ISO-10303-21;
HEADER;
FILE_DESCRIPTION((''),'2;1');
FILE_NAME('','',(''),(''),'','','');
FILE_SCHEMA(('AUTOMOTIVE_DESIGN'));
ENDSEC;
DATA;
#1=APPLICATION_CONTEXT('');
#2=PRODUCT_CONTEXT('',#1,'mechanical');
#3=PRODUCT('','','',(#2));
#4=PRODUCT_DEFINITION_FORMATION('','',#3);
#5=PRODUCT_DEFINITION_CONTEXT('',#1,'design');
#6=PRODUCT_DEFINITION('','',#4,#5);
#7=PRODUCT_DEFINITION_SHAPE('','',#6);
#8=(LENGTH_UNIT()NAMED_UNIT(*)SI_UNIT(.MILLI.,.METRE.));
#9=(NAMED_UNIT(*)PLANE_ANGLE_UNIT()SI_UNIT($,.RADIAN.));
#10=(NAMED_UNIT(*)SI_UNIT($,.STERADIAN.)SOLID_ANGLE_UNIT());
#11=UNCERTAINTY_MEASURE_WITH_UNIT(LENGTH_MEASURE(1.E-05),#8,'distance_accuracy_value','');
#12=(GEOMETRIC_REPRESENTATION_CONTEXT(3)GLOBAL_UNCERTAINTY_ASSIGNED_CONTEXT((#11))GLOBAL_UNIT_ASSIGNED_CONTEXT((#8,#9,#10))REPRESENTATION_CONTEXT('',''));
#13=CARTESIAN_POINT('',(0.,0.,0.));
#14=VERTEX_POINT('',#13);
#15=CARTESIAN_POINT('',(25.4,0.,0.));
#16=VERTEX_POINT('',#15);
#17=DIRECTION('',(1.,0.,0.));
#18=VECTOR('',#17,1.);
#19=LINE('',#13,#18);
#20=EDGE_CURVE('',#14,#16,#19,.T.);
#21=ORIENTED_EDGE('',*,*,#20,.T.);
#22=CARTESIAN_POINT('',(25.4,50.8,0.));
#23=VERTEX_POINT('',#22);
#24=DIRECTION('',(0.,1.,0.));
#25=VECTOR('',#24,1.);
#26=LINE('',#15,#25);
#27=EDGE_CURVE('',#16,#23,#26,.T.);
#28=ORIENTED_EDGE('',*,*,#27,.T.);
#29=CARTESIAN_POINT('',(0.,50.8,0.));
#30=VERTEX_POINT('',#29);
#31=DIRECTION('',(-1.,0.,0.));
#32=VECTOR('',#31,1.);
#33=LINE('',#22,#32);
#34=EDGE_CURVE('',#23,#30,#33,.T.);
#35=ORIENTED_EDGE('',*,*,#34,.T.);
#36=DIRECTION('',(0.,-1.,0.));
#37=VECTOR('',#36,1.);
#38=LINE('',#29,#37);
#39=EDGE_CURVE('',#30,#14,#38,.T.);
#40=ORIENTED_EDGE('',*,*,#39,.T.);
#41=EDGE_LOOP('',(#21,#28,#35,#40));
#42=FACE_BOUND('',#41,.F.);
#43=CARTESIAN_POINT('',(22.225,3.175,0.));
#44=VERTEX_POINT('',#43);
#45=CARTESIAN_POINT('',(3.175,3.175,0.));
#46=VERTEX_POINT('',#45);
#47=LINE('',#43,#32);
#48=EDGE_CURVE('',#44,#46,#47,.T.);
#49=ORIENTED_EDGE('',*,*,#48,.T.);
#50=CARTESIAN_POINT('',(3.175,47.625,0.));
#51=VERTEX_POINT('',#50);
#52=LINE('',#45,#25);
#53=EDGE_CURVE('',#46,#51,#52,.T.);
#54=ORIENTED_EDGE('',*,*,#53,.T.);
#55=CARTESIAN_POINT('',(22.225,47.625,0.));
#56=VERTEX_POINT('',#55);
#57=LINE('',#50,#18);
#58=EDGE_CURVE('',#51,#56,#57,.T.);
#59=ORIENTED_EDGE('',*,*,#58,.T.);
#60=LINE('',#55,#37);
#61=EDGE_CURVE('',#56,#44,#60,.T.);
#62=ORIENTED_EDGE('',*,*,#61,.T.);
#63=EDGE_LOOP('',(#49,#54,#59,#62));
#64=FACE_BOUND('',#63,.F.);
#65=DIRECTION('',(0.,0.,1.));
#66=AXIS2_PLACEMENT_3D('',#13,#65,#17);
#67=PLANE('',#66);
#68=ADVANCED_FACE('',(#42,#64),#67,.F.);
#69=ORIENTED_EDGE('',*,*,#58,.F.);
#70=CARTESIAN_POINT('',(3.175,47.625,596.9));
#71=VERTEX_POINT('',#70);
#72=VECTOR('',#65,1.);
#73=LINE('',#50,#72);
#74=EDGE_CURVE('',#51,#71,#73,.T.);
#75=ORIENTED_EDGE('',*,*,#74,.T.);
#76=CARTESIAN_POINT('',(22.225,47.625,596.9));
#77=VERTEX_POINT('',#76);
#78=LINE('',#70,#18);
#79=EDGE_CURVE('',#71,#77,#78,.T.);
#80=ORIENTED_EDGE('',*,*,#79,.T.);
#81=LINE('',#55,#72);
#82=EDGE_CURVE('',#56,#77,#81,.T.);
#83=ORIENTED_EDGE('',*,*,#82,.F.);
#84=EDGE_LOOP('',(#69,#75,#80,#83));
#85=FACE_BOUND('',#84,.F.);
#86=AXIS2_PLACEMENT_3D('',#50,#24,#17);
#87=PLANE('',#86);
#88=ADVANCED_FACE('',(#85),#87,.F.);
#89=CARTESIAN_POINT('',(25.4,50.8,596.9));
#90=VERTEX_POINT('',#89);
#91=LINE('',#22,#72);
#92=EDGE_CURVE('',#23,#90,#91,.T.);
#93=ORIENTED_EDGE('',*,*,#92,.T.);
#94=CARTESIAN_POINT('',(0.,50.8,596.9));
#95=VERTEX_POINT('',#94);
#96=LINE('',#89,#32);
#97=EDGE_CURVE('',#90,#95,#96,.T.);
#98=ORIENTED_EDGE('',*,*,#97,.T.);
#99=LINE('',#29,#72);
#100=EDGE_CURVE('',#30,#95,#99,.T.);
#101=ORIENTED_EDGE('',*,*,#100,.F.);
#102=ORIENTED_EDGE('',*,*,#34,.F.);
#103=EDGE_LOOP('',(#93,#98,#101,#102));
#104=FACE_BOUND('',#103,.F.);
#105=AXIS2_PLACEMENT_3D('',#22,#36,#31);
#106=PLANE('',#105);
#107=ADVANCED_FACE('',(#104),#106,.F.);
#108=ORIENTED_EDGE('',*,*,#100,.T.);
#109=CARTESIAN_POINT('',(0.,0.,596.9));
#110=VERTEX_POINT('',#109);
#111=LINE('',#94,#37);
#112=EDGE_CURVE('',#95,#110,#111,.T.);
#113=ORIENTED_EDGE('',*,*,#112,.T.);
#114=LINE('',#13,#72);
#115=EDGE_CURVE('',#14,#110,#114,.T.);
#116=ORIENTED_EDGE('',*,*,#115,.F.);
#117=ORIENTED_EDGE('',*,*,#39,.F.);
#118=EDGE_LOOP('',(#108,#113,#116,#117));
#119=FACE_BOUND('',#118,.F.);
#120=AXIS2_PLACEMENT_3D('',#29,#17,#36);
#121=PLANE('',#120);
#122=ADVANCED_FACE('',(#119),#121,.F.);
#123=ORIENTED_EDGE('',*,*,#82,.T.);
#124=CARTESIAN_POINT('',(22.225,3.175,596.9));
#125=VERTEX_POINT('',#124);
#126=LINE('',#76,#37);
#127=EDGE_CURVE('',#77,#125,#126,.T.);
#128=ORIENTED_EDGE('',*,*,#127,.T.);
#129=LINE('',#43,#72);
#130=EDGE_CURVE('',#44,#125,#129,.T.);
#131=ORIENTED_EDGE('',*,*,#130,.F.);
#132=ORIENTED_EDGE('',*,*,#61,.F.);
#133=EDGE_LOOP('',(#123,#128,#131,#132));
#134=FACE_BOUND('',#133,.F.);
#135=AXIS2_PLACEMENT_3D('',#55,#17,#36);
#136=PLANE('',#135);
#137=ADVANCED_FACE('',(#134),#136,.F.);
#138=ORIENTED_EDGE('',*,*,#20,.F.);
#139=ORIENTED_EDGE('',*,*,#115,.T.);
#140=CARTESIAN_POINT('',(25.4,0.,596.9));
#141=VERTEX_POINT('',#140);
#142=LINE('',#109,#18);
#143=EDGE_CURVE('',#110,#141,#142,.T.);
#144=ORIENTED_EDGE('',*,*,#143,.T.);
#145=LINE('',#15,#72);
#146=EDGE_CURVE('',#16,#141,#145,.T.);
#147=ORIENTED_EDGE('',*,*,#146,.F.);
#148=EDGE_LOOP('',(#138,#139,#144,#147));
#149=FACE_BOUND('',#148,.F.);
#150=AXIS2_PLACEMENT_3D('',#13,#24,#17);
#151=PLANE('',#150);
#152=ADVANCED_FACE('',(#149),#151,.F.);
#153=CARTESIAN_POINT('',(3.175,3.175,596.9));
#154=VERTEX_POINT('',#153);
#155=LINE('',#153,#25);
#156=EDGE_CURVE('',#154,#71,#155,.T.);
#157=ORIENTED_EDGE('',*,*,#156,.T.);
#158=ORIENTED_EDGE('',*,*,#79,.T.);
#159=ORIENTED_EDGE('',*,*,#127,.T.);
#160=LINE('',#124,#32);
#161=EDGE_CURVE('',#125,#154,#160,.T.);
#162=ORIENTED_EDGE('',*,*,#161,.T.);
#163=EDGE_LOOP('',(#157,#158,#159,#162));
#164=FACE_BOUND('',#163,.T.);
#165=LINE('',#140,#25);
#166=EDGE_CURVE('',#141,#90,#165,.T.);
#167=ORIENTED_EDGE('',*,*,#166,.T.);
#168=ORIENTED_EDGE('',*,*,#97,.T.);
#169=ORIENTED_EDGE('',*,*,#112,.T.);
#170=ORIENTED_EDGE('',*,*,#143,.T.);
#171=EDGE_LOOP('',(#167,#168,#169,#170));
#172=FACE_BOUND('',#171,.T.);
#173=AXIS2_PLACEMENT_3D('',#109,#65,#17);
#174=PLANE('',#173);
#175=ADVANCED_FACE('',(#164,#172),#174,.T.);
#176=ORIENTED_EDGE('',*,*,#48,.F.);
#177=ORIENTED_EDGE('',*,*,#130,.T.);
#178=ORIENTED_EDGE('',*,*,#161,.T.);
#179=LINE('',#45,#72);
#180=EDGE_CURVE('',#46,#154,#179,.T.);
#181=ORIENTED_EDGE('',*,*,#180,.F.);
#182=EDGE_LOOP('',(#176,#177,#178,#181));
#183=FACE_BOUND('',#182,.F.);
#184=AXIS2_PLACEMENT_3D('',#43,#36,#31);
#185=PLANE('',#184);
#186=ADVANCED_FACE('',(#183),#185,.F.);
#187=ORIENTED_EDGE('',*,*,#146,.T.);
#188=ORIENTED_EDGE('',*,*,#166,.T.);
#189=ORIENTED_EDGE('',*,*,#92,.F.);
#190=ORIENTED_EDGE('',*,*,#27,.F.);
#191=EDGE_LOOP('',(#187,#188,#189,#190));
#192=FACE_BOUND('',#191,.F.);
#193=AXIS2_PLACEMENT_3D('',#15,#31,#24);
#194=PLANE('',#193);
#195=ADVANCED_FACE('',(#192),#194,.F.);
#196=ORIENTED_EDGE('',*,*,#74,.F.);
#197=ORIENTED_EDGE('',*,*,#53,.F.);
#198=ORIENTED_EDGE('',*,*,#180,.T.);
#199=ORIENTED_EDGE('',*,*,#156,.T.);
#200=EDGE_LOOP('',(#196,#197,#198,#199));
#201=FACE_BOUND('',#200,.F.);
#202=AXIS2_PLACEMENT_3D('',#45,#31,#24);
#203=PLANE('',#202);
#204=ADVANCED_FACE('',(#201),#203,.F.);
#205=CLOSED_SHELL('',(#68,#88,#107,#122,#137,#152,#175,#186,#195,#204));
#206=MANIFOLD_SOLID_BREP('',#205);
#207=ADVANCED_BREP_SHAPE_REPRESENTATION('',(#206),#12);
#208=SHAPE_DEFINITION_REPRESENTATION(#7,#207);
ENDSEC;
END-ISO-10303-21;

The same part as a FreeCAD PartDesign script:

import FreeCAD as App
import Part
import Sketcher
Q = App.Units.Quantity

doc = App.newDocument("Part")
body = doc.addObject("PartDesign::Body", "Body")

# Sketch on XY plane
sketch1 = body.newObject("Sketcher::SketchObject", "Sketch")
sketch1.AttachmentSupport = (doc.getObject("XY_Plane"), [""])
sketch1.MapMode = "FlatFace"
sketch1.addGeometry(Part.LineSegment(App.Vector(0, 50.8, 0), App.Vector(0, 0, 0)), False)
sketch1.addGeometry(Part.LineSegment(App.Vector(0, 0, 0), App.Vector(25.4, 0, 0)), False)
sketch1.addGeometry(Part.LineSegment(App.Vector(25.4, 0, 0), App.Vector(25.4, 50.8, 0)), False)
sketch1.addGeometry(Part.LineSegment(App.Vector(25.4, 50.8, 0), App.Vector(0, 50.8, 0)), False)
sketch1.addGeometry(Part.LineSegment(App.Vector(3.175, 3.175, 0), App.Vector(3.175, 47.625, 0)), False)
sketch1.addGeometry(Part.LineSegment(App.Vector(3.175, 47.625, 0), App.Vector(22.225, 47.625, 0)), False)
sketch1.addGeometry(Part.LineSegment(App.Vector(22.225, 47.625, 0), App.Vector(22.225, 3.175, 0)), False)
sketch1.addGeometry(Part.LineSegment(App.Vector(22.225, 3.175, 0), App.Vector(3.175, 3.175, 0)), False)
sketch1.addConstraint(Sketcher.Constraint("Coincident", 0, 2, 1, 1))
sketch1.addConstraint(Sketcher.Constraint("Coincident", 1, 2, 2, 1))
sketch1.addConstraint(Sketcher.Constraint("Coincident", 2, 2, 3, 1))
sketch1.addConstraint(Sketcher.Constraint("Coincident", 3, 2, 0, 1))
sketch1.addConstraint(Sketcher.Constraint("Coincident", 4, 2, 5, 1))
sketch1.addConstraint(Sketcher.Constraint("Coincident", 5, 2, 6, 1))
sketch1.addConstraint(Sketcher.Constraint("Coincident", 6, 2, 7, 1))
sketch1.addConstraint(Sketcher.Constraint("Coincident", 7, 2, 4, 1))
sketch1.addConstraint(Sketcher.Constraint("Vertical", 0))
sketch1.addConstraint(Sketcher.Constraint("Horizontal", 1))
sketch1.addConstraint(Sketcher.Constraint("Vertical", 2))
sketch1.addConstraint(Sketcher.Constraint("Horizontal", 3))
sketch1.addConstraint(Sketcher.Constraint("Vertical", 4))
sketch1.addConstraint(Sketcher.Constraint("Horizontal", 5))
sketch1.addConstraint(Sketcher.Constraint("Vertical", 6))
sketch1.addConstraint(Sketcher.Constraint("Horizontal", 7))
sketch1.addConstraint(Sketcher.Constraint("Coincident", 0, 2, -1, 1))
sketch1.addConstraint(Sketcher.Constraint("DistanceX", 1, 1, 1, 2, Q("1 in")))
sketch1.addConstraint(Sketcher.Constraint("DistanceY", 0, 2, 0, 1, Q("2 in")))
sketch1.addConstraint(Sketcher.Constraint("DistanceX", -1, 1, 4, 2, Q("0.125 in")))
sketch1.addConstraint(Sketcher.Constraint("DistanceY", -1, 1, 6, 2, Q("0.125 in")))
sketch1.addConstraint(Sketcher.Constraint("DistanceY", 4, 2, 3, 2, Q("0.125 in")))
sketch1.addConstraint(Sketcher.Constraint("DistanceX", 5, 2, 2, 2, Q("0.125 in")))
pad1 = body.newObject("PartDesign::Pad", "Pad")
pad1.Profile = sketch1
pad1.Length = Q("23.5 in")

doc.recompute()
